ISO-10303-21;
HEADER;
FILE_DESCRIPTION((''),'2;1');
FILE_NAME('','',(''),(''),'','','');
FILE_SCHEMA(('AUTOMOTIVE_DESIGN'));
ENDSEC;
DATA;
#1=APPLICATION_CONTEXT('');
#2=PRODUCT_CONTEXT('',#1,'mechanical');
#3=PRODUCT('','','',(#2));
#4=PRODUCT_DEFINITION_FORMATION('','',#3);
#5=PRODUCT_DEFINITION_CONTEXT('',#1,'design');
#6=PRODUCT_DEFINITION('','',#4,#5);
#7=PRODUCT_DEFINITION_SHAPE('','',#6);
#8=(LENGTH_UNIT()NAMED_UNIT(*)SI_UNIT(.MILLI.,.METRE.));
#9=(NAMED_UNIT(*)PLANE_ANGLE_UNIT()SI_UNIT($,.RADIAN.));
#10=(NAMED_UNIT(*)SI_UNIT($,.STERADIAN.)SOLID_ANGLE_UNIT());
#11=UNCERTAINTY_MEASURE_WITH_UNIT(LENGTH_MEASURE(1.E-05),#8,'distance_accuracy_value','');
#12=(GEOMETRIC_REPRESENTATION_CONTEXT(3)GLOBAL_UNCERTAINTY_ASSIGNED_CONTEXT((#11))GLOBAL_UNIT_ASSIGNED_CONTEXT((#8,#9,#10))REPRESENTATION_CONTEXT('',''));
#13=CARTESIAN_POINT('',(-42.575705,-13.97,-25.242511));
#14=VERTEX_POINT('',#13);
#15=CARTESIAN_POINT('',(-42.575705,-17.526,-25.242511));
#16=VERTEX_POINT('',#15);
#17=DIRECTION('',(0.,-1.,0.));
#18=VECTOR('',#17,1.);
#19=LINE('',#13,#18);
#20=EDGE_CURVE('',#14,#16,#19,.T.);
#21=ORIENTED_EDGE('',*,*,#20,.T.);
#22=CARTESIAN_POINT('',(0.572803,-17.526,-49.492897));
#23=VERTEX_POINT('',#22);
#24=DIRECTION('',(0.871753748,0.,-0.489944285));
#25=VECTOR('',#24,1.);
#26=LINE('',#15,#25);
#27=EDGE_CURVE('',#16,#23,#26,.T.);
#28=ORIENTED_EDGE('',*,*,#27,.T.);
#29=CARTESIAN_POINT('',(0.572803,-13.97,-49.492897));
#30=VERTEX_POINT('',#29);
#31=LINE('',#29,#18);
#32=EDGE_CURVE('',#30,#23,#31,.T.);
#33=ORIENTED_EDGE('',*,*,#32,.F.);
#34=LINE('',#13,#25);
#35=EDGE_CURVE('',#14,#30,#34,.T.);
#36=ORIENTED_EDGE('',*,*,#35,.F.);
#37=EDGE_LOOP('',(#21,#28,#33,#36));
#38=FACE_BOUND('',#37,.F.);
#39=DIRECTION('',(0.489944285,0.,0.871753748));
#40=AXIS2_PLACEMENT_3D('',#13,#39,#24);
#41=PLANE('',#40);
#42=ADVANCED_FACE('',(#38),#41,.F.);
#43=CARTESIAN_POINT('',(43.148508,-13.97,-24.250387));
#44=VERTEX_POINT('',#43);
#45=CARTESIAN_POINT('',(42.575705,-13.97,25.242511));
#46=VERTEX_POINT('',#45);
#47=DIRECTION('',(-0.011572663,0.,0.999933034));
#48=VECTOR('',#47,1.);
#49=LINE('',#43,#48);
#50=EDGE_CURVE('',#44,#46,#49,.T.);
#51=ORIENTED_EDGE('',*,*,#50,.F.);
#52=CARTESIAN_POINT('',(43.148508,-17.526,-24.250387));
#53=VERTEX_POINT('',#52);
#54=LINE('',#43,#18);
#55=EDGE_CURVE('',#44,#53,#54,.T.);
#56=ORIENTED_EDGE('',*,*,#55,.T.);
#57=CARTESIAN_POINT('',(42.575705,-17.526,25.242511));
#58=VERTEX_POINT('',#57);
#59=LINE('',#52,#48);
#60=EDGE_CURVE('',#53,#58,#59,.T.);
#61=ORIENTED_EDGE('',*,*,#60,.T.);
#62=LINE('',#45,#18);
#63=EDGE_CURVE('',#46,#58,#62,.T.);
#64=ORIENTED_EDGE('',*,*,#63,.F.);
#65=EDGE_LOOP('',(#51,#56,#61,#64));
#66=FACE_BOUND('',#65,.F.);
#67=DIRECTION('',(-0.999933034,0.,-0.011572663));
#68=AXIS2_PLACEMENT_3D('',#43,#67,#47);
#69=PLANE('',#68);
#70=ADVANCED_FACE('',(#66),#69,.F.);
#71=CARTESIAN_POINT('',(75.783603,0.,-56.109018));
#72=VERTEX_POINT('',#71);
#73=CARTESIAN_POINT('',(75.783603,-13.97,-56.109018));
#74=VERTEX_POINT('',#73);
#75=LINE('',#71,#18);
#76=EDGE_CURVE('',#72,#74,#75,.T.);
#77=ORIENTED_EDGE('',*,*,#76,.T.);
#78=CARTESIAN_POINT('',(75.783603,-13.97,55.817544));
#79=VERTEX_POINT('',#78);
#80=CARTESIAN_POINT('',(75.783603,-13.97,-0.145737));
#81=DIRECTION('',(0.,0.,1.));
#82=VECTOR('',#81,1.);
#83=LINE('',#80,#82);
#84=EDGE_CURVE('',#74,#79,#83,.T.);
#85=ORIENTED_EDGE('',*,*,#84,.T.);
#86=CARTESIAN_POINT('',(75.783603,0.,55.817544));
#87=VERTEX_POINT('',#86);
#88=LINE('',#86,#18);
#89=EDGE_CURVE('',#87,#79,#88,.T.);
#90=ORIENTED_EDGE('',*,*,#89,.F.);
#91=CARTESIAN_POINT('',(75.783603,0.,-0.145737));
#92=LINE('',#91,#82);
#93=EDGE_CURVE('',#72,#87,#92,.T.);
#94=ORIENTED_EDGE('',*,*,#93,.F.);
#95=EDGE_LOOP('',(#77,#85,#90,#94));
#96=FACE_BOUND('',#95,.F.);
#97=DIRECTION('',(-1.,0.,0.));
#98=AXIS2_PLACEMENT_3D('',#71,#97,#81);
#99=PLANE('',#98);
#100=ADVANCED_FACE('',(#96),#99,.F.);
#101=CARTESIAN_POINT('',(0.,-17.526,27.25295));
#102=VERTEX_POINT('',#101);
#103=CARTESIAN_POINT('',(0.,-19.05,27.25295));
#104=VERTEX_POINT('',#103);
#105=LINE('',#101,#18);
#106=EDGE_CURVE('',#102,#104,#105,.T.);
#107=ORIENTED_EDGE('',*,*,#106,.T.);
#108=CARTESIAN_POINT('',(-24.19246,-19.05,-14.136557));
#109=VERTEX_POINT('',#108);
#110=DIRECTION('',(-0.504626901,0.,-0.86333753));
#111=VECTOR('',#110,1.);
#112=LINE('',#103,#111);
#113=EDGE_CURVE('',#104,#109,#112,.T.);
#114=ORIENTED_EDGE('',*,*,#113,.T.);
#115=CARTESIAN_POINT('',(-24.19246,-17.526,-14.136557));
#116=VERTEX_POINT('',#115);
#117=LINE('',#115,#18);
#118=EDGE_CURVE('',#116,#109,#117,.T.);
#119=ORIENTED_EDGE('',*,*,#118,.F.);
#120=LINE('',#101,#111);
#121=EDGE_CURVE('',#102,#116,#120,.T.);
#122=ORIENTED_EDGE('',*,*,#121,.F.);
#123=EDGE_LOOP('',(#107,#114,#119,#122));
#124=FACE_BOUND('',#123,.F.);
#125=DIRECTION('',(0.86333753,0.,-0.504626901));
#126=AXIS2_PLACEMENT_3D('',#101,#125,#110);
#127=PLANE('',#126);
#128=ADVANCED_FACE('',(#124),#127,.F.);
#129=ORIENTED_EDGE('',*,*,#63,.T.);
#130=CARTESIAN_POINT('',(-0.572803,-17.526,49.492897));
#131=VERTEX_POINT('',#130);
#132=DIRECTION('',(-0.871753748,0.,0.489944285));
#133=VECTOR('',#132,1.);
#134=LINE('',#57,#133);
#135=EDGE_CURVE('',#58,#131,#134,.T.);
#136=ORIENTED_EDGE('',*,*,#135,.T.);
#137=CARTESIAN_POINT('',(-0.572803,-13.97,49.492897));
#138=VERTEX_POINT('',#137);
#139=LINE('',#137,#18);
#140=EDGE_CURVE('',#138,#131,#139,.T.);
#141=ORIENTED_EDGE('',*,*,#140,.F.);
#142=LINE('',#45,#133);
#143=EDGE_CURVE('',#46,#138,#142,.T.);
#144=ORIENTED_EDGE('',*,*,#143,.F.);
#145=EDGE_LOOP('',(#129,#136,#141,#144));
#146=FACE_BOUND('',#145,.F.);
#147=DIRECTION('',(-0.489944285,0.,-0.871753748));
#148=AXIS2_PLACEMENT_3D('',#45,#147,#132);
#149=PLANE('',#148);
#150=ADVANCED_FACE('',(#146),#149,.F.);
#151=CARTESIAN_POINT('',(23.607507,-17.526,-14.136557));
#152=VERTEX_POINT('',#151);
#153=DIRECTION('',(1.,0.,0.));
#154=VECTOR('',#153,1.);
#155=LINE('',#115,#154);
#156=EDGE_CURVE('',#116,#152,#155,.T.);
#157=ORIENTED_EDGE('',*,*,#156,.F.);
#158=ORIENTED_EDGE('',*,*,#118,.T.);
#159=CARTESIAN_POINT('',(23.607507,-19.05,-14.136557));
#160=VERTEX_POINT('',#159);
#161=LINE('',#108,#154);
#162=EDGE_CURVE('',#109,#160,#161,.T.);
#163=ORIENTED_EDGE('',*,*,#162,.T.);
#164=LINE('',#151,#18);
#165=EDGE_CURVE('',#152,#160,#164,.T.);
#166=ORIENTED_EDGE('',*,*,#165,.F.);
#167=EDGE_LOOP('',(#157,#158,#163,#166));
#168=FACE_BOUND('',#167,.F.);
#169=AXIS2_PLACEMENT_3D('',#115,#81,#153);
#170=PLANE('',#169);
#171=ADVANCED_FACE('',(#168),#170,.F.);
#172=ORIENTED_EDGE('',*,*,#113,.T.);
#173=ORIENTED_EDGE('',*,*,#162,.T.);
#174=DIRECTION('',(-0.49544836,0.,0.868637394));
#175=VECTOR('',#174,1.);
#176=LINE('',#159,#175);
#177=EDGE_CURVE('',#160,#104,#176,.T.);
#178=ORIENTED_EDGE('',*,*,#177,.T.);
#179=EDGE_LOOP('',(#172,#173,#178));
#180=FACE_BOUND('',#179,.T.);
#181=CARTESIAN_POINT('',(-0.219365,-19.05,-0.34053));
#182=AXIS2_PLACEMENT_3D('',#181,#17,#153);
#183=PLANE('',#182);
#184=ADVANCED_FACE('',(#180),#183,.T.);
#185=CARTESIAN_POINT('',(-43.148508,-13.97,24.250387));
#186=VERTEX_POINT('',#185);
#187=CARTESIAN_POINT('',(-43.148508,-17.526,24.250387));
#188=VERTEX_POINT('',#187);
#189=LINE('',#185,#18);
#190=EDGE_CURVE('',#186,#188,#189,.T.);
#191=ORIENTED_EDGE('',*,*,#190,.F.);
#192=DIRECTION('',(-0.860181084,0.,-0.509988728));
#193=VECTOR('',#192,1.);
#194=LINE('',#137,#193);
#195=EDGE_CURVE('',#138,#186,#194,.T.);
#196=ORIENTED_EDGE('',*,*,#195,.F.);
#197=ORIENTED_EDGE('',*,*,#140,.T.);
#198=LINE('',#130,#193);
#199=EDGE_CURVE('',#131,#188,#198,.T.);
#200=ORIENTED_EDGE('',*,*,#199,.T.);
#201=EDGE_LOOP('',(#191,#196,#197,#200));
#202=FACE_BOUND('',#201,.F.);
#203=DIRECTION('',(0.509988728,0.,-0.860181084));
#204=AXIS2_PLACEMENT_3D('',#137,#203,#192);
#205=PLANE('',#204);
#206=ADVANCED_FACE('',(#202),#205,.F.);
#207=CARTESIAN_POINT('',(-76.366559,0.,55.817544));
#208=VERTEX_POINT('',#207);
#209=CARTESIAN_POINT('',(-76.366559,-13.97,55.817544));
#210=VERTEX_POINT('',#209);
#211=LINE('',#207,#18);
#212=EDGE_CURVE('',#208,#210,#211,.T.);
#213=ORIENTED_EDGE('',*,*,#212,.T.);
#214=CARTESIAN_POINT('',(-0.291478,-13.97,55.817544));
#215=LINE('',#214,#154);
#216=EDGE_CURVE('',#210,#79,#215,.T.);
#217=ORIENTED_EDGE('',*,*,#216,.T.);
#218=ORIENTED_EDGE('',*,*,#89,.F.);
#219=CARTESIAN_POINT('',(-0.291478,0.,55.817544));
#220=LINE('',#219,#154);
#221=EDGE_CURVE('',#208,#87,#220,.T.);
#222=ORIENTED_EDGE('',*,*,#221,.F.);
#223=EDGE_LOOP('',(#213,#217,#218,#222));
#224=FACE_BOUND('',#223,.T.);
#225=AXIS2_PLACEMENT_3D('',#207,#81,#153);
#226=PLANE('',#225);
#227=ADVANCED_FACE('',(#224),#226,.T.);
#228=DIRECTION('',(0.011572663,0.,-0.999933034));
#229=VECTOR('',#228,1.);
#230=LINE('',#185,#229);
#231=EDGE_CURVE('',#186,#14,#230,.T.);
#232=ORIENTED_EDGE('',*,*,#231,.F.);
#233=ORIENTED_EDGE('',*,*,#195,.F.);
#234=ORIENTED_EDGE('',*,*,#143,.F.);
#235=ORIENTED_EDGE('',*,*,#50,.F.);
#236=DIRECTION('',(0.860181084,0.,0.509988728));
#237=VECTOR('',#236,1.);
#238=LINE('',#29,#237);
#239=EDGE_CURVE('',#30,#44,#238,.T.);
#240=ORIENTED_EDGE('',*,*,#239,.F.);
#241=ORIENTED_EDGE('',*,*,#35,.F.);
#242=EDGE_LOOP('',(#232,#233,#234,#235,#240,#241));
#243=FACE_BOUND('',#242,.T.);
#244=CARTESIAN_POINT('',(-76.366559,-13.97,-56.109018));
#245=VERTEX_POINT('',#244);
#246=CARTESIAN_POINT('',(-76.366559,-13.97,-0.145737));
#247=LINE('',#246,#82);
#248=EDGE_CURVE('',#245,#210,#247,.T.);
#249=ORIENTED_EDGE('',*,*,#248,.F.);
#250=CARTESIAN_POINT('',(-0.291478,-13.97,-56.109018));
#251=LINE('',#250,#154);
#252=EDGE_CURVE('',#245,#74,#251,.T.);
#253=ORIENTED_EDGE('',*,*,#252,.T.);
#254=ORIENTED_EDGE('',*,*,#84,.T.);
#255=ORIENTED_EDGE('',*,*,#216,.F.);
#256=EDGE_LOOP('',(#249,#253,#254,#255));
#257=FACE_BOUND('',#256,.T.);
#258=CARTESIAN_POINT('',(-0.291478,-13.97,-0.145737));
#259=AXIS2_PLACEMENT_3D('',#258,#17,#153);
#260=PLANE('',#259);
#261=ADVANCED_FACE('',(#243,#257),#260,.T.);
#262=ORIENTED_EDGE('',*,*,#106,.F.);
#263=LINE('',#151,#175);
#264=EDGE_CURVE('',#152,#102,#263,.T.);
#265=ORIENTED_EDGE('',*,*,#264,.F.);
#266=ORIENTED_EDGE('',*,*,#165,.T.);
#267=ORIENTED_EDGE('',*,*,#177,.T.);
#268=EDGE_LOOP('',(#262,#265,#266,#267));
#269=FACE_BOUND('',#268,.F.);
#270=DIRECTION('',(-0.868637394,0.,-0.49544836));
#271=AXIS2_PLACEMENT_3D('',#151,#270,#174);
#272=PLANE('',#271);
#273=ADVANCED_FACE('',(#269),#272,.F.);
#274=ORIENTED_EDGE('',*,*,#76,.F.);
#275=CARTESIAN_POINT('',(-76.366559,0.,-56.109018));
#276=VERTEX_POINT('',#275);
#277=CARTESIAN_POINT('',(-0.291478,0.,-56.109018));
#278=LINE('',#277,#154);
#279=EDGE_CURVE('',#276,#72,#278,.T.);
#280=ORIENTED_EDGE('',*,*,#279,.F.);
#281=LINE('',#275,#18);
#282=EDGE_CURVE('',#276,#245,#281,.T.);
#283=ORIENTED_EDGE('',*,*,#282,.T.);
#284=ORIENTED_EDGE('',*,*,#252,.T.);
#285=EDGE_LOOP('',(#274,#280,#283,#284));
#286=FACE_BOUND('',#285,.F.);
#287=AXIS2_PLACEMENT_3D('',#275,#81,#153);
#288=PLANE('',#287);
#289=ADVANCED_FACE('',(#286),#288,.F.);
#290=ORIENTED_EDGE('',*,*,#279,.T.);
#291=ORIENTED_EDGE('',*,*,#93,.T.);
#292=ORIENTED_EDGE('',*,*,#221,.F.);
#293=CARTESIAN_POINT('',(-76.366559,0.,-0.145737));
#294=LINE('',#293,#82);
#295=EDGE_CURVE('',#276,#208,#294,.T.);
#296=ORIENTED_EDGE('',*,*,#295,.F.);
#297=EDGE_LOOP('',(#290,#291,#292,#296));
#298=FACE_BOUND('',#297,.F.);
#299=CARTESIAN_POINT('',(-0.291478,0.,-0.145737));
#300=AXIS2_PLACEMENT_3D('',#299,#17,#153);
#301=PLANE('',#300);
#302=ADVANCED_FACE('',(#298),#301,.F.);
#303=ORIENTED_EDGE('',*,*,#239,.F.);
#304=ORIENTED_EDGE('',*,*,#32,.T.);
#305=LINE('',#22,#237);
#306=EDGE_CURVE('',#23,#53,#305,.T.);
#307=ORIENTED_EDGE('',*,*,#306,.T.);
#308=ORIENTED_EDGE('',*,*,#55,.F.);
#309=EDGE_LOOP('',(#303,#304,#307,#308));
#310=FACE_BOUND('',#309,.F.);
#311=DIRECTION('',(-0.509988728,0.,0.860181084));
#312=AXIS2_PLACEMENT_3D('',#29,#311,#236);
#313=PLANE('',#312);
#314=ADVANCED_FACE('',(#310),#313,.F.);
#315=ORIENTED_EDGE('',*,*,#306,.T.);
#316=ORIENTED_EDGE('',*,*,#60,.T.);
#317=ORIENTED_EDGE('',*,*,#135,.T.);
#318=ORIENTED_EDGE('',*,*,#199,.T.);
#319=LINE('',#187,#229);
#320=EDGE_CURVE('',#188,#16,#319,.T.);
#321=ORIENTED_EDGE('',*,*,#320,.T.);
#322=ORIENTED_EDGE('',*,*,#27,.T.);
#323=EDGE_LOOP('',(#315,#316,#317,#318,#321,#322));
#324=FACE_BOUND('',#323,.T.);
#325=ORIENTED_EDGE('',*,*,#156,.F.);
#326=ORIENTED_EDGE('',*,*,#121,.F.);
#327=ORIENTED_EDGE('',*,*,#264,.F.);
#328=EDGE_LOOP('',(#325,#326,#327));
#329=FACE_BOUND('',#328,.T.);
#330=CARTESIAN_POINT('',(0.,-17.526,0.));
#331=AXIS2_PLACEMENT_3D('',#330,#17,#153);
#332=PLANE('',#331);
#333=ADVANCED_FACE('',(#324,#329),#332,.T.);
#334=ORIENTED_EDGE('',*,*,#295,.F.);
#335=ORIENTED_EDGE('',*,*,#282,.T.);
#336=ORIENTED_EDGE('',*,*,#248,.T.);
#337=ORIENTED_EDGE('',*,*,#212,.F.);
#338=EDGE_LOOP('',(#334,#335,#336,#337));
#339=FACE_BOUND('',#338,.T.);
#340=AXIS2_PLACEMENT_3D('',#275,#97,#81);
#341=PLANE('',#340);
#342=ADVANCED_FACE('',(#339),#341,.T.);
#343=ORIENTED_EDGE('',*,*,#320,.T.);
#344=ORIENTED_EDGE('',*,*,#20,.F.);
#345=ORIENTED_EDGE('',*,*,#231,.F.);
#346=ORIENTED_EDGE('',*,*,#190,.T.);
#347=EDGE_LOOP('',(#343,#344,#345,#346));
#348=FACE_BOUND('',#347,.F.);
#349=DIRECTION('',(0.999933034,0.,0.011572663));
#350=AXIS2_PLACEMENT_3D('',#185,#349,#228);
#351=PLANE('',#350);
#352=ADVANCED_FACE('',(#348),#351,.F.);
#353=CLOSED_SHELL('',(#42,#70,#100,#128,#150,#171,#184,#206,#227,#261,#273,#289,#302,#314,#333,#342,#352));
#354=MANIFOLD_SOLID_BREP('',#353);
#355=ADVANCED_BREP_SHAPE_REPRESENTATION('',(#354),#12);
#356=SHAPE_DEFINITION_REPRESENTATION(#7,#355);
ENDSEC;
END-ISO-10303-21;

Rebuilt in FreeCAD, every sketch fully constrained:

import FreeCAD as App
import Part
import Sketcher
from FreeCAD import Vector
Q = App.Units.Quantity


def add_polygon(sketch, points):
    """Adds a closed chain of lines whose ends are joined by coincident constraints."""
    first, n = sketch.GeometryCount, len(points)
    for a, b in zip(points, points[1:] + points[:1]):
        sketch.addGeometry(Part.LineSegment(App.Vector(*a, 0), App.Vector(*b, 0)), False)
    for i in range(n):
        sketch.addConstraint(Sketcher.Constraint("Coincident", first + i, 2, first + (i + 1) % n, 1))

doc = App.newDocument("Part")
body = doc.addObject("PartDesign::Body", "Body")

# Sketch on XZ plane
sketch1 = doc.addObject("Sketcher::SketchObject", "Sketch")
body.addObject(sketch1)
sketch1.AttachmentSupport = (doc.XZ_Plane, [""])
sketch1.MapMode = "FlatFace"
add_polygon(sketch1, [(-76, 56), (-76, -56), (76, -56), (76, 56)])  # lines 0-3
sketch1.addConstraint(Sketcher.Constraint("Vertical", 0))
sketch1.addConstraint(Sketcher.Constraint("Horizontal", 1))
sketch1.addConstraint(Sketcher.Constraint("Vertical", 2))
sketch1.addConstraint(Sketcher.Constraint("Horizontal", 3))
sketch1.addConstraint(Sketcher.Constraint("DistanceX", 1, 1, 1, 2, Q("152.150162 mm")))
sketch1.addConstraint(Sketcher.Constraint("DistanceY", 0, 2, 0, 1, Q("111.926563 mm")))
sketch1.addConstraint(Sketcher.Constraint("DistanceX", 0, 2, -1, 1, Q("76.366559 mm")))
sketch1.addConstraint(Sketcher.Constraint("DistanceY", 0, 2, -1, 1, Q("56.109018 mm")))
pad1 = doc.addObject("PartDesign::Pad", "Pad")
body.addObject(pad1)
pad1.Profile = sketch1
pad1.Length = Q("0.55 in")

# Sketch on XZ plane
sketch2 = doc.addObject("Sketcher::SketchObject", "Sketch001")
body.addObject(sketch2)
sketch2.AttachmentSupport = (doc.XZ_Plane, [""])
sketch2.MapMode = "FlatFace"
sketch2.AttachmentOffset = App.Placement(Vector(0, 0, 0.55 * 25.4), App.Rotation())
add_polygon(sketch2, [(-1, 49), (-43, 24), (-43, -25), (1, -49), (43, -24), (43, 25)])  # lines 0-5
sketch2.addConstraint(Sketcher.Constraint("Symmetric", 0, 2, 3, 2, -1, 1))
sketch2.addConstraint(Sketcher.Constraint("Symmetric", 1, 2, 4, 2, -1, 1))
sketch2.addConstraint(Sketcher.Constraint("Symmetric", 2, 2, 5, 2, -1, 1))
sketch2.addConstraint(Sketcher.Constraint("Equal", 0, 1))
sketch2.addConstraint(Sketcher.Constraint("Equal", 1, 2))
sketch2.addConstraint(Sketcher.Constraint("Distance", 0, Q("49.496212 mm")))
sketch2.addConstraint(Sketcher.Constraint("DistanceY", 1, 2, -1, 1, Q("25.242511 mm")))
sketch2.addConstraint(Sketcher.Constraint("DistanceX", 0, 2, 2, 2, Q("43.721311 mm")))
sketch2.addConstraint(Sketcher.Constraint("DistanceY", 2, 2, 3, 2, Q("25.24251 mm")))
pad2 = doc.addObject("PartDesign::Pad", "Pad001")
body.addObject(pad2)
pad2.Profile = sketch2
pad2.Length = Q("0.14 in")

# Sketch on XZ plane
sketch3 = doc.addObject("Sketcher::SketchObject", "Sketch002")
body.addObject(sketch3)
sketch3.AttachmentSupport = (doc.XZ_Plane, [""])
sketch3.MapMode = "FlatFace"
sketch3.AttachmentOffset = App.Placement(Vector(0, 0, 0.69 * 25.4), App.Rotation())
add_polygon(sketch3, [(24, -14), (0, 27), (-24, -14)])  # lines 0-2
sketch3.addConstraint(Sketcher.Constraint("Horizontal", 2))
sketch3.addConstraint(Sketcher.Constraint("PointOnObject", 0, 2, -2))
sketch3.addConstraint(Sketcher.Constraint("Distance", 1, Q("47.941281 mm")))
sketch3.addConstraint(Sketcher.Constraint("DistanceX", 2, 1, 2, 2, Q("47.799967 mm")))
sketch3.addConstraint(Sketcher.Constraint("DistanceY", -1, 1, 0, 2, Q("27.25295 mm")))
sketch3.addConstraint(Sketcher.Constraint("DistanceX", 1, 2, -1, 1, Q("24.19246 mm")))
pad3 = doc.addObject("PartDesign::Pad", "Pad002")
body.addObject(pad3)
pad3.Profile = sketch3
pad3.Length = Q("0.06 in")

doc.recompute()
